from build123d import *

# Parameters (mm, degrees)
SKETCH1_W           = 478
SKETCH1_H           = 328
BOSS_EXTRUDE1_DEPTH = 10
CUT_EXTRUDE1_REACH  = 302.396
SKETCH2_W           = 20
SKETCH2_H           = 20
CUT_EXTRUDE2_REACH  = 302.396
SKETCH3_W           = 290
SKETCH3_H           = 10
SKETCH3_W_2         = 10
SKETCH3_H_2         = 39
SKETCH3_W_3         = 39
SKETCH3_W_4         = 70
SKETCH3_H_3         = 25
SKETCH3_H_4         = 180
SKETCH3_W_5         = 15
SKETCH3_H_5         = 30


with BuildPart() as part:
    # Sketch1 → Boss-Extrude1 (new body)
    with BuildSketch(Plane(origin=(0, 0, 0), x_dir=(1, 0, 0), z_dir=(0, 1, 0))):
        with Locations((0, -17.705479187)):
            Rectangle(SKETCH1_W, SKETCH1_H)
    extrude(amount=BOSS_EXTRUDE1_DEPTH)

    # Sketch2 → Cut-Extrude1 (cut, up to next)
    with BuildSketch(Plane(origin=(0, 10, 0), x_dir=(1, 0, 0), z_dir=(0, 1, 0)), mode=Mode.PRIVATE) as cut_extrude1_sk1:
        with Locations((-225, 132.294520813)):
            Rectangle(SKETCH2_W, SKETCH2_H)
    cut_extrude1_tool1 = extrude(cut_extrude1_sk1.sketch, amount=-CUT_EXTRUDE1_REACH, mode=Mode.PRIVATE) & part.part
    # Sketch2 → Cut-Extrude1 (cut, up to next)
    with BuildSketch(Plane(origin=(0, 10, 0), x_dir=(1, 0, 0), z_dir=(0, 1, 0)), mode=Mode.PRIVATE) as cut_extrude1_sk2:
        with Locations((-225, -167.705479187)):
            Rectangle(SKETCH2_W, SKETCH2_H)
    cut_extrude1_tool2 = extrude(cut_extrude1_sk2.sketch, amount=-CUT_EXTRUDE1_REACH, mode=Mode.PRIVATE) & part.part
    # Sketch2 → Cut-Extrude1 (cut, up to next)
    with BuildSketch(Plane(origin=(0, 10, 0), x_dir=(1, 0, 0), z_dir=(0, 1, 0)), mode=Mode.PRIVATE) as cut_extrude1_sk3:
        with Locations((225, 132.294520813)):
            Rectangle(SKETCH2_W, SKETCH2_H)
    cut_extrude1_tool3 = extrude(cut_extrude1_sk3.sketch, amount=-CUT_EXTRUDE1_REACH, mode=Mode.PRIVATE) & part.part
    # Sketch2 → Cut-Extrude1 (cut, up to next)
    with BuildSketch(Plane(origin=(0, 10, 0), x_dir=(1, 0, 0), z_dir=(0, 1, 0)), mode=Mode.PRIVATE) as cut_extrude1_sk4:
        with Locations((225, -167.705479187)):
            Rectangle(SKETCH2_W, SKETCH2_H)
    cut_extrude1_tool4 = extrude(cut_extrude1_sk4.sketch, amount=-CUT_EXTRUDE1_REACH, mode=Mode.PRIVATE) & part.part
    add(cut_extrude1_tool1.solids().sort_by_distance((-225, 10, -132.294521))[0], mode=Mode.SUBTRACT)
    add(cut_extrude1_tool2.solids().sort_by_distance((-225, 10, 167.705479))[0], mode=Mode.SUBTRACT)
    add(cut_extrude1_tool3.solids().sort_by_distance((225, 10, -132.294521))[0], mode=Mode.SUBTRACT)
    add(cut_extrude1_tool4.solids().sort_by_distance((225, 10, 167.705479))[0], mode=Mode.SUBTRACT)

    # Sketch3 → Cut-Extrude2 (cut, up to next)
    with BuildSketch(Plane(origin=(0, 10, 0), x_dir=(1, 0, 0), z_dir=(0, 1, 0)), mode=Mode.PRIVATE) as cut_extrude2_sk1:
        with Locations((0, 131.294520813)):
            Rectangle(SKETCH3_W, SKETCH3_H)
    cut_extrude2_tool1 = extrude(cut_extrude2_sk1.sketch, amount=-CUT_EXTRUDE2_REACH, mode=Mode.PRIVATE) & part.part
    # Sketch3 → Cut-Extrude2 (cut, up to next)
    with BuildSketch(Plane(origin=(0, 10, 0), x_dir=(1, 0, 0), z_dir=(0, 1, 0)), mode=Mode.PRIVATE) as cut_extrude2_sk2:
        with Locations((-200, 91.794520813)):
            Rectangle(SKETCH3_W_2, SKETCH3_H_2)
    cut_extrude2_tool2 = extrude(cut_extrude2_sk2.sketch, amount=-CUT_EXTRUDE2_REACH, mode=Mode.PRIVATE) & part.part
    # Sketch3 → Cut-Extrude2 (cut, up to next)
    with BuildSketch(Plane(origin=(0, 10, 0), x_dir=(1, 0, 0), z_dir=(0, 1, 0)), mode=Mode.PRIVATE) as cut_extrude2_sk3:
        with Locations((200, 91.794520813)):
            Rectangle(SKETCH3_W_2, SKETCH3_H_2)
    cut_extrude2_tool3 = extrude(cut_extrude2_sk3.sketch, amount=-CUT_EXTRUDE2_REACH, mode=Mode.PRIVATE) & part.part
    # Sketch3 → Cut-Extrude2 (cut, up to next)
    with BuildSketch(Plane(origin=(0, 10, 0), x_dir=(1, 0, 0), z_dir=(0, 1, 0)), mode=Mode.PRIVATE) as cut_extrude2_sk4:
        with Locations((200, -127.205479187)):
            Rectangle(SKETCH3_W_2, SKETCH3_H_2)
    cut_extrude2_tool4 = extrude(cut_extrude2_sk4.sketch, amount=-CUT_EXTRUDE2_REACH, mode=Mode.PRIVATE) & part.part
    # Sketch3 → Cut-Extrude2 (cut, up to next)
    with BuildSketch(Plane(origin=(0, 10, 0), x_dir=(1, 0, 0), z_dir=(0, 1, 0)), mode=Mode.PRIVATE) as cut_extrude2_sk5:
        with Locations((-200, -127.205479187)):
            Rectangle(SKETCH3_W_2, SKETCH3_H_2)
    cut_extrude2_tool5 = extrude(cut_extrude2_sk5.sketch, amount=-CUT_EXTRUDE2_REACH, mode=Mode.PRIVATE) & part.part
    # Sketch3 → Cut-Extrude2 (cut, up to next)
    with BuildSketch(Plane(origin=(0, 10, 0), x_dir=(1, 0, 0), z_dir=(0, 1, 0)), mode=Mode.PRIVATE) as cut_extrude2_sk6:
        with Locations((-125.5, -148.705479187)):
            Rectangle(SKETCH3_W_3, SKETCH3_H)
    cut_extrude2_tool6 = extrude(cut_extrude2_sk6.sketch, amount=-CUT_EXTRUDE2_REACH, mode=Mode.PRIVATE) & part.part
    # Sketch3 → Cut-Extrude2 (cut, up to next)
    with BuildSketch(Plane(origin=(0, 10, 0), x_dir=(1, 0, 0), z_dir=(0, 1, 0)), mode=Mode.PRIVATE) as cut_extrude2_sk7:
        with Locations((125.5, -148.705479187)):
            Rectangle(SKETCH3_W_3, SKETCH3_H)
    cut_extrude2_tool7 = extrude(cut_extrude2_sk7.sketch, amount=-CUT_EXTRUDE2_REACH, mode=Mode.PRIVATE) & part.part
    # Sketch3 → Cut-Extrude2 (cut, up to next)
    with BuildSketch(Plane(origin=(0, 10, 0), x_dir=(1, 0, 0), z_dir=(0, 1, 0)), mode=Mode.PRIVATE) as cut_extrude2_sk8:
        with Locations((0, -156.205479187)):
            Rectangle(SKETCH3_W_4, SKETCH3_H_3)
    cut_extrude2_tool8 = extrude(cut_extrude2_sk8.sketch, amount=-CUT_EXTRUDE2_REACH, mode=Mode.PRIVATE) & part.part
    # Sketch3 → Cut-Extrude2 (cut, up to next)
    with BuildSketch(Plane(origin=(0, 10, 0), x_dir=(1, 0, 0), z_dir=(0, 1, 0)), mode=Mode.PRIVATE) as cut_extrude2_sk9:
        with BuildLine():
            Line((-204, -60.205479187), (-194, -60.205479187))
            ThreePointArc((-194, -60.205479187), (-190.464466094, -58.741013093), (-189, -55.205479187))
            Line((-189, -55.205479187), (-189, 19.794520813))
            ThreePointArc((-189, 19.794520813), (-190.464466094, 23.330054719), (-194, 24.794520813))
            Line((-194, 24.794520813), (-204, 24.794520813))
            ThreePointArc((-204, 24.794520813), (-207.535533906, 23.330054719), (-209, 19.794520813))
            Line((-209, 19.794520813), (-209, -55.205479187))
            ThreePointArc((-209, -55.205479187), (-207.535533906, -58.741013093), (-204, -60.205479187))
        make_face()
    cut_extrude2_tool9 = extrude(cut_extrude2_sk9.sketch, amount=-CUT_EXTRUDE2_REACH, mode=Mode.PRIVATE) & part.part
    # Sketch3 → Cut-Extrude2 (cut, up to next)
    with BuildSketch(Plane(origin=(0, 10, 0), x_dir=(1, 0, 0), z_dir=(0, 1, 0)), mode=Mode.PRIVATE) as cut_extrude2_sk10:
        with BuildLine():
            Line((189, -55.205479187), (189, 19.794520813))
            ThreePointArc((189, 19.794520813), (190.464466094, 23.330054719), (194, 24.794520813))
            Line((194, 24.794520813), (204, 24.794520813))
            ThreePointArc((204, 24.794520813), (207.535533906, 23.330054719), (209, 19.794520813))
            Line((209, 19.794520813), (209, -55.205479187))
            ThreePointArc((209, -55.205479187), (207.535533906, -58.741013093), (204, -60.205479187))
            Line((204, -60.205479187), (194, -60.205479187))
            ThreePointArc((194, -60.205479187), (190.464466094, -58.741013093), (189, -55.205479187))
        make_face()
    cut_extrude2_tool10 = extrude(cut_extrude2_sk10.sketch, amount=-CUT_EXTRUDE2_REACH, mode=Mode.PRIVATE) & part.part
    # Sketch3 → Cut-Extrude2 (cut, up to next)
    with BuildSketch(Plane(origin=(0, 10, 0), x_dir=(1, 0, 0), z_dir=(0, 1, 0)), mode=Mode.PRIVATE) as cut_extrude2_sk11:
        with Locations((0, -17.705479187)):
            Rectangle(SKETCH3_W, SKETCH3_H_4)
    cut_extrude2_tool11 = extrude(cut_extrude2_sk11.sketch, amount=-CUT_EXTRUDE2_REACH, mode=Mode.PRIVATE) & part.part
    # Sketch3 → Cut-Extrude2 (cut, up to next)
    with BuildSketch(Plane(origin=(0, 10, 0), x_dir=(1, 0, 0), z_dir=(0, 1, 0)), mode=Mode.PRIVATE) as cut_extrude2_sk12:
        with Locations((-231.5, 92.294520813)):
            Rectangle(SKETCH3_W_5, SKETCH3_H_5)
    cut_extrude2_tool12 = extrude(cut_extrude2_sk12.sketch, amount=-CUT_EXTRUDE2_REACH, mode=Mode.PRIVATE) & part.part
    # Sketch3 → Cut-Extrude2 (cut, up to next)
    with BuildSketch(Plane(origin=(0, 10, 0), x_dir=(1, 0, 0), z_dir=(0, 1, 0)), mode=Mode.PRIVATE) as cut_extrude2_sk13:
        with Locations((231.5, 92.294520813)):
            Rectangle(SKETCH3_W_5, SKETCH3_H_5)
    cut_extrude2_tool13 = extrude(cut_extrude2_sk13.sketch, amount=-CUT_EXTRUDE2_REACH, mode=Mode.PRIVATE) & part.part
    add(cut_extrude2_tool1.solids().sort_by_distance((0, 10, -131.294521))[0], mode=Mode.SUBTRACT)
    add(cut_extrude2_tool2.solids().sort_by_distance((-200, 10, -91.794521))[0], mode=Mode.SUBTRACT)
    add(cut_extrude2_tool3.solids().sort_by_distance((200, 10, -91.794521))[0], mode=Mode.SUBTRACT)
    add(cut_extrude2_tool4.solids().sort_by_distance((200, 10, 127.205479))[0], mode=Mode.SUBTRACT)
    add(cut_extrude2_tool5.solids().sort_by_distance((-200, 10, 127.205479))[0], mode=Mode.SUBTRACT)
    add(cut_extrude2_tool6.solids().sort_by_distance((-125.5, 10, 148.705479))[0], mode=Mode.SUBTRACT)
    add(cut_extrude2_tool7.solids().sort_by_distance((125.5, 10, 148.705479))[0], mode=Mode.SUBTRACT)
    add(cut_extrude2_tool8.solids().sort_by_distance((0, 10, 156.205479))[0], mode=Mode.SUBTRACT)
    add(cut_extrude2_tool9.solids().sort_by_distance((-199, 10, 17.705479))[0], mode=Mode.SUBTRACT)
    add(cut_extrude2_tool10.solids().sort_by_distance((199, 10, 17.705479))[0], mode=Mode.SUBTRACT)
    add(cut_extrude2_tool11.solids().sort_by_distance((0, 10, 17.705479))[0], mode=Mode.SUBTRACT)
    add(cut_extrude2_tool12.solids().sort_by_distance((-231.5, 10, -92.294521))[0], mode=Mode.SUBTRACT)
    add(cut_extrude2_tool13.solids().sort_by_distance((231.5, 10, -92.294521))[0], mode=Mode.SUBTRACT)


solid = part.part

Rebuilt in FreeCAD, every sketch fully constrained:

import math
import FreeCAD as App
import Part
import Sketcher

V = App.Vector

doc = App.newDocument("Part")
body = doc.addObject("PartDesign::Body", "Body")

# Sketch on XZ plane
sketch1 = body.newObject("Sketcher::SketchObject", "Sketch")
sketch1.AttachmentSupport = (doc.getObject("XZ_Plane"), [""])
sketch1.MapMode = "FlatFace"
sketch1.addGeometry([
    Part.LineSegment(V(-239, -146, 0), V(-239, 182, 0)),
    Part.LineSegment(V(-239, 182, 0), V(239, 182, 0)),
    Part.LineSegment(V(239, 182, 0), V(239, -146, 0)),
    Part.LineSegment(V(239, -146, 0), V(-239, -146, 0)),
], False)
sketch1.addConstraint([
    Sketcher.Constraint("Coincident", 0, 2, 1, 1),
    Sketcher.Constraint("Coincident", 1, 2, 2, 1),
    Sketcher.Constraint("Coincident", 2, 2, 3, 1),
    Sketcher.Constraint("Coincident", 3, 2, 0, 1),
    Sketcher.Constraint("Vertical", 0),
    Sketcher.Constraint("Horizontal", 1),
    Sketcher.Constraint("Vertical", 2),
    Sketcher.Constraint("Horizontal", 3),
    Sketcher.Constraint("DistanceX", 1, 1, 1, 2, 478.0),
    Sketcher.Constraint("DistanceY", 0, 1, 0, 2, 328.0),
    Sketcher.Constraint("DistanceX", 0, 2, -1, 1, 239.0),
    Sketcher.Constraint("DistanceY", -1, 1, 0, 2, 181.705479),
])
pad1 = body.newObject("PartDesign::Pad", "Pad")
pad1.Profile = sketch1
pad1.Length = 10
pad1.Reversed = True

# Sketch on XZ plane
sketch2 = body.newObject("Sketcher::SketchObject", "Sketch001")
sketch2.AttachmentSupport = (doc.getObject("XZ_Plane"), [""])
sketch2.MapMode = "FlatFace"
sketch2.AttachmentOffset = App.Placement(V(0, 0, -10), App.Rotation())
sketch2.addGeometry([
    Part.LineSegment(V(-235, -142, 0), V(-235, -122, 0)),
    Part.LineSegment(V(-235, -122, 0), V(-215, -122, 0)),
    Part.LineSegment(V(-215, -122, 0), V(-215, -142, 0)),
    Part.LineSegment(V(-215, -142, 0), V(-235, -142, 0)),
], False)
sketch2.addConstraint([
    Sketcher.Constraint("Coincident", 0, 2, 1, 1),
    Sketcher.Constraint("Coincident", 1, 2, 2, 1),
    Sketcher.Constraint("Coincident", 2, 2, 3, 1),
    Sketcher.Constraint("Coincident", 3, 2, 0, 1),
    Sketcher.Constraint("Vertical", 0),
    Sketcher.Constraint("Horizontal", 1),
    Sketcher.Constraint("Vertical", 2),
    Sketcher.Constraint("Horizontal", 3),
    Sketcher.Constraint("Equal", 3, 0),
    Sketcher.Constraint("DistanceX", 1, 1, 1, 2, 20.0),
    Sketcher.Constraint("DistanceX", 0, 2, -1, 1, 235.0),
    Sketcher.Constraint("DistanceY", 0, 2, -1, 1, 122.294521),
])
pocket1 = body.newObject("PartDesign::Pocket", "Pocket")
pocket1.Profile = sketch2
pocket1.Type = "UpToFirst"
pocket1.Reversed = True

# Sketch on XZ plane
sketch3 = body.newObject("Sketcher::SketchObject", "Sketch002")
sketch3.AttachmentSupport = (doc.getObject("XZ_Plane"), [""])
sketch3.MapMode = "FlatFace"
sketch3.AttachmentOffset = App.Placement(V(0, 0, -10), App.Rotation())
sketch3.addGeometry([
    Part.LineSegment(V(-235, 158, 0), V(-235, 178, 0)),
    Part.LineSegment(V(-235, 178, 0), V(-215, 178, 0)),
    Part.LineSegment(V(-215, 178, 0), V(-215, 158, 0)),
    Part.LineSegment(V(-215, 158, 0), V(-235, 158, 0)),
], False)
sketch3.addConstraint([
    Sketcher.Constraint("Coincident", 0, 2, 1, 1),
    Sketcher.Constraint("Coincident", 1, 2, 2, 1),
    Sketcher.Constraint("Coincident", 2, 2, 3, 1),
    Sketcher.Constraint("Coincident", 3, 2, 0, 1),
    Sketcher.Constraint("Vertical", 0),
    Sketcher.Constraint("Horizontal", 1),
    Sketcher.Constraint("Vertical", 2),
    Sketcher.Constraint("Horizontal", 3),
    Sketcher.Constraint("Equal", 3, 0),
    Sketcher.Constraint("DistanceX", 1, 1, 1, 2, 20.0),
    Sketcher.Constraint("DistanceX", 0, 2, -1, 1, 235.0),
    Sketcher.Constraint("DistanceY", -1, 1, 0, 2, 177.705479),
])
pocket2 = body.newObject("PartDesign::Pocket", "Pocket001")
pocket2.Profile = sketch3
pocket2.Type = "UpToFirst"
pocket2.Reversed = True

# Sketch on XZ plane
sketch4 = body.newObject("Sketcher::SketchObject", "Sketch003")
sketch4.AttachmentSupport = (doc.getObject("XZ_Plane"), [""])
sketch4.MapMode = "FlatFace"
sketch4.AttachmentOffset = App.Placement(V(0, 0, -10), App.Rotation())
sketch4.addGeometry([
    Part.LineSegment(V(215, -142, 0), V(215, -122, 0)),
    Part.LineSegment(V(215, -122, 0), V(235, -122, 0)),
    Part.LineSegment(V(235, -122, 0), V(235, -142, 0)),
    Part.LineSegment(V(235, -142, 0), V(215, -142, 0)),
], False)
sketch4.addConstraint([
    Sketcher.Constraint("Coincident", 0, 2, 1, 1),
    Sketcher.Constraint("Coincident", 1, 2, 2, 1),
    Sketcher.Constraint("Coincident", 2, 2, 3, 1),
    Sketcher.Constraint("Coincident", 3, 2, 0, 1),
    Sketcher.Constraint("Vertical", 0),
    Sketcher.Constraint("Horizontal", 1),
    Sketcher.Constraint("Vertical", 2),
    Sketcher.Constraint("Horizontal", 3),
    Sketcher.Constraint("Equal", 3, 0),
    Sketcher.Constraint("DistanceX", 1, 1, 1, 2, 20.0),
    Sketcher.Constraint("DistanceX", -1, 1, 0, 2, 215.0),
    Sketcher.Constraint("DistanceY", 0, 2, -1, 1, 122.294521),
])
pocket3 = body.newObject("PartDesign::Pocket", "Pocket002")
pocket3.Profile = sketch4
pocket3.Type = "UpToFirst"
pocket3.Reversed = True

# Sketch on XZ plane
sketch5 = body.newObject("Sketcher::SketchObject", "Sketch004")
sketch5.AttachmentSupport = (doc.getObject("XZ_Plane"), [""])
sketch5.MapMode = "FlatFace"
sketch5.AttachmentOffset = App.Placement(V(0, 0, -10), App.Rotation())
sketch5.addGeometry([
    Part.LineSegment(V(215, 158, 0), V(215, 178, 0)),
    Part.LineSegment(V(215, 178, 0), V(235, 178, 0)),
    Part.LineSegment(V(235, 178, 0), V(235, 158, 0)),
    Part.LineSegment(V(235, 158, 0), V(215, 158, 0)),
], False)
sketch5.addConstraint([
    Sketcher.Constraint("Coincident", 0, 2, 1, 1),
    Sketcher.Constraint("Coincident", 1, 2, 2, 1),
    Sketcher.Constraint("Coincident", 2, 2, 3, 1),
    Sketcher.Constraint("Coincident", 3, 2, 0, 1),
    Sketcher.Constraint("Vertical", 0),
    Sketcher.Constraint("Horizontal", 1),
    Sketcher.Constraint("Vertical", 2),
    Sketcher.Constraint("Horizontal", 3),
    Sketcher.Constraint("Equal", 3, 0),
    Sketcher.Constraint("DistanceX", 1, 1, 1, 2, 20.0),
    Sketcher.Constraint("DistanceX", -1, 1, 0, 2, 215.0),
    Sketcher.Constraint("DistanceY", -1, 1, 0, 2, 177.705479),
])
pocket4 = body.newObject("PartDesign::Pocket", "Pocket003")
pocket4.Profile = sketch5
pocket4.Type = "UpToFirst"
pocket4.Reversed = True

# Sketch on XZ plane
sketch6 = body.newObject("Sketcher::SketchObject", "Sketch005")
sketch6.AttachmentSupport = (doc.getObject("XZ_Plane"), [""])
sketch6.MapMode = "FlatFace"
sketch6.AttachmentOffset = App.Placement(V(0, 0, -10), App.Rotation())
sketch6.addGeometry([
    Part.LineSegment(V(-145, -136, 0), V(-145, -126, 0)),
    Part.LineSegment(V(-145, -126, 0), V(145, -126, 0)),
    Part.LineSegment(V(145, -126, 0), V(145, -136, 0)),
    Part.LineSegment(V(145, -136, 0), V(-145, -136, 0)),
], False)
sketch6.addConstraint([
    Sketcher.Constraint("Coincident", 0, 2, 1, 1),
    Sketcher.Constraint("Coincident", 1, 2, 2, 1),
    Sketcher.Constraint("Coincident", 2, 2, 3, 1),
    Sketcher.Constraint("Coincident", 3, 2, 0, 1),
    Sketcher.Constraint("Vertical", 0),
    Sketcher.Constraint("Horizontal", 1),
    Sketcher.Constraint("Vertical", 2),
    Sketcher.Constraint("Horizontal", 3),
    Sketcher.Constraint("DistanceX", 1, 1, 1, 2, 290.0),
    Sketcher.Constraint("DistanceY", 0, 1, 0, 2, 10.0),
    Sketcher.Constraint("DistanceX", 0, 2, -1, 1, 145.0),
    Sketcher.Constraint("DistanceY", 0, 2, -1, 1, 126.294521),
])
pocket5 = body.newObject("PartDesign::Pocket", "Pocket004")
pocket5.Profile = sketch6
pocket5.Type = "UpToFirst"
pocket5.Reversed = True

# Sketch on XZ plane
sketch7 = body.newObject("Sketcher::SketchObject", "Sketch006")
sketch7.AttachmentSupport = (doc.getObject("XZ_Plane"), [""])
sketch7.MapMode = "FlatFace"
sketch7.AttachmentOffset = App.Placement(V(0, 0, -10), App.Rotation())
sketch7.addGeometry([
    Part.LineSegment(V(-205, -111, 0), V(-205, -72, 0)),
    Part.LineSegment(V(-205, -72, 0), V(-195, -72, 0)),
    Part.LineSegment(V(-195, -72, 0), V(-195, -111, 0)),
    Part.LineSegment(V(-195, -111, 0), V(-205, -111, 0)),
], False)
sketch7.addConstraint([
    Sketcher.Constraint("Coincident", 0, 2, 1, 1),
    Sketcher.Constraint("Coincident", 1, 2, 2, 1),
    Sketcher.Constraint("Coincident", 2, 2, 3, 1),
    Sketcher.Constraint("Coincident", 3, 2, 0, 1),
    Sketcher.Constraint("Vertical", 0),
    Sketcher.Constraint("Horizontal", 1),
    Sketcher.Constraint("Vertical", 2),
    Sketcher.Constraint("Horizontal", 3),
    Sketcher.Constraint("DistanceX", 1, 1, 1, 2, 10.0),
    Sketcher.Constraint("DistanceY", 0, 1, 0, 2, 39.0),
    Sketcher.Constraint("DistanceX", 0, 2, -1, 1, 205.0),
    Sketcher.Constraint("DistanceY", 0, 2, -1, 1, 72.294521),
])
pocket6 = body.newObject("PartDesign::Pocket", "Pocket005")
pocket6.Profile = sketch7
pocket6.Type = "UpToFirst"
pocket6.Reversed = True

# Sketch on XZ plane
sketch8 = body.newObject("Sketcher::SketchObject", "Sketch007")
sketch8.AttachmentSupport = (doc.getObject("XZ_Plane"), [""])
sketch8.MapMode = "FlatFace"
sketch8.AttachmentOffset = App.Placement(V(0, 0, -10), App.Rotation())
sketch8.addGeometry([
    Part.LineSegment(V(195, -111, 0), V(195, -72, 0)),
    Part.LineSegment(V(195, -72, 0), V(205, -72, 0)),
    Part.LineSegment(V(205, -72, 0), V(205, -111, 0)),
    Part.LineSegment(V(205, -111, 0), V(195, -111, 0)),
], False)
sketch8.addConstraint([
    Sketcher.Constraint("Coincident", 0, 2, 1, 1),
    Sketcher.Constraint("Coincident", 1, 2, 2, 1),
    Sketcher.Constraint("Coincident", 2, 2, 3, 1),
    Sketcher.Constraint("Coincident", 3, 2, 0, 1),
    Sketcher.Constraint("Vertical", 0),
    Sketcher.Constraint("Horizontal", 1),
    Sketcher.Constraint("Vertical", 2),
    Sketcher.Constraint("Horizontal", 3),
    Sketcher.Constraint("DistanceX", 1, 1, 1, 2, 10.0),
    Sketcher.Constraint("DistanceY", 0, 1, 0, 2, 39.0),
    Sketcher.Constraint("DistanceX", -1, 1, 0, 2, 195.0),
    Sketcher.Constraint("DistanceY", 0, 2, -1, 1, 72.294521),
])
pocket7 = body.newObject("PartDesign::Pocket", "Pocket006")
pocket7.Profile = sketch8
pocket7.Type = "UpToFirst"
pocket7.Reversed = True

# Sketch on XZ plane
sketch9 = body.newObject("Sketcher::SketchObject", "Sketch008")
sketch9.AttachmentSupport = (doc.getObject("XZ_Plane"), [""])
sketch9.MapMode = "FlatFace"
sketch9.AttachmentOffset = App.Placement(V(0, 0, -10), App.Rotation())
sketch9.addGeometry([
    Part.LineSegment(V(195, 108, 0), V(195, 147, 0)),
    Part.LineSegment(V(195, 147, 0), V(205, 147, 0)),
    Part.LineSegment(V(205, 147, 0), V(205, 108, 0)),
    Part.LineSegment(V(205, 108, 0), V(195, 108, 0)),
], False)
sketch9.addConstraint([
    Sketcher.Constraint("Coincident", 0, 2, 1, 1),
    Sketcher.Constraint("Coincident", 1, 2, 2, 1),
    Sketcher.Constraint("Coincident", 2, 2, 3, 1),
    Sketcher.Constraint("Coincident", 3, 2, 0, 1),
    Sketcher.Constraint("Vertical", 0),
    Sketcher.Constraint("Horizontal", 1),
    Sketcher.Constraint("Vertical", 2),
    Sketcher.Constraint("Horizontal", 3),
    Sketcher.Constraint("DistanceX", 1, 1, 1, 2, 10.0),
    Sketcher.Constraint("DistanceY", 0, 1, 0, 2, 39.0),
    Sketcher.Constraint("DistanceX", -1, 1, 0, 2, 195.0),
    Sketcher.Constraint("DistanceY", -1, 1, 0, 2, 146.705479),
])
pocket8 = body.newObject("PartDesign::Pocket", "Pocket007")
pocket8.Profile = sketch9
pocket8.Type = "UpToFirst"
pocket8.Reversed = True

# Sketch on XZ plane
sketch10 = body.newObject("Sketcher::SketchObject", "Sketch009")
sketch10.AttachmentSupport = (doc.getObject("XZ_Plane"), [""])
sketch10.MapMode = "FlatFace"
sketch10.AttachmentOffset = App.Placement(V(0, 0, -10), App.Rotation())
sketch10.addGeometry([
    Part.LineSegment(V(-205, 108, 0), V(-205, 147, 0)),
    Part.LineSegment(V(-205, 147, 0), V(-195, 147, 0)),
    Part.LineSegment(V(-195, 147, 0), V(-195, 108, 0)),
    Part.LineSegment(V(-195, 108, 0), V(-205, 108, 0)),
], False)
sketch10.addConstraint([
    Sketcher.Constraint("Coincident", 0, 2, 1, 1),
    Sketcher.Constraint("Coincident", 1, 2, 2, 1),
    Sketcher.Constraint("Coincident", 2, 2, 3, 1),
    Sketcher.Constraint("Coincident", 3, 2, 0, 1),
    Sketcher.Constraint("Vertical", 0),
    Sketcher.Constraint("Horizontal", 1),
    Sketcher.Constraint("Vertical", 2),
    Sketcher.Constraint("Horizontal", 3),
    Sketcher.Constraint("DistanceX", 1, 1, 1, 2, 10.0),
    Sketcher.Constraint("DistanceY", 0, 1, 0, 2, 39.0),
    Sketcher.Constraint("DistanceX", 0, 2, -1, 1, 205.0),
    Sketcher.Constraint("DistanceY", -1, 1, 0, 2, 146.705479),
])
pocket9 = body.newObject("PartDesign::Pocket", "Pocket008")
pocket9.Profile = sketch10
pocket9.Type = "UpToFirst"
pocket9.Reversed = True

# Sketch on XZ plane
sketch11 = body.newObject("Sketcher::SketchObject", "Sketch010")
sketch11.AttachmentSupport = (doc.getObject("XZ_Plane"), [""])
sketch11.MapMode = "FlatFace"
sketch11.AttachmentOffset = App.Placement(V(0, 0, -10), App.Rotation())
sketch11.addGeometry([
    Part.LineSegment(V(-145, 144, 0), V(-145, 154, 0)),
    Part.LineSegment(V(-145, 154, 0), V(-106, 154, 0)),
    Part.LineSegment(V(-106, 154, 0), V(-106, 144, 0)),
    Part.LineSegment(V(-106, 144, 0), V(-145, 144, 0)),
], False)
sketch11.addConstraint([
    Sketcher.Constraint("Coincident", 0, 2, 1, 1),
    Sketcher.Constraint("Coincident", 1, 2, 2, 1),
    Sketcher.Constraint("Coincident", 2, 2, 3, 1),
    Sketcher.Constraint("Coincident", 3, 2, 0, 1),
    Sketcher.Constraint("Vertical", 0),
    Sketcher.Constraint("Horizontal", 1),
    Sketcher.Constraint("Vertical", 2),
    Sketcher.Constraint("Horizontal", 3),
    Sketcher.Constraint("DistanceX", 1, 1, 1, 2, 39.0),
    Sketcher.Constraint("DistanceY", 0, 1, 0, 2, 10.0),
    Sketcher.Constraint("DistanceX", 0, 2, -1, 1, 145.0),
    Sketcher.Constraint("DistanceY", -1, 1, 0, 2, 153.705479),
])
pocket10 = body.newObject("PartDesign::Pocket", "Pocket009")
pocket10.Profile = sketch11
pocket10.Type = "UpToFirst"
pocket10.Reversed = True

# Sketch on XZ plane
sketch12 = body.newObject("Sketcher::SketchObject", "Sketch011")
sketch12.AttachmentSupport = (doc.getObject("XZ_Plane"), [""])
sketch12.MapMode = "FlatFace"
sketch12.AttachmentOffset = App.Placement(V(0, 0, -10), App.Rotation())
sketch12.addGeometry([
    Part.LineSegment(V(106, 144, 0), V(106, 154, 0)),
    Part.LineSegment(V(106, 154, 0), V(145, 154, 0)),
    Part.LineSegment(V(145, 154, 0), V(145, 144, 0)),
    Part.LineSegment(V(145, 144, 0), V(106, 144, 0)),
], False)
sketch12.addConstraint([
    Sketcher.Constraint("Coincident", 0, 2, 1, 1),
    Sketcher.Constraint("Coincident", 1, 2, 2, 1),
    Sketcher.Constraint("Coincident", 2, 2, 3, 1),
    Sketcher.Constraint("Coincident", 3, 2, 0, 1),
    Sketcher.Constraint("Vertical", 0),
    Sketcher.Constraint("Horizontal", 1),
    Sketcher.Constraint("Vertical", 2),
    Sketcher.Constraint("Horizontal", 3),
    Sketcher.Constraint("DistanceX", 1, 1, 1, 2, 39.0),
    Sketcher.Constraint("DistanceY", 0, 1, 0, 2, 10.0),
    Sketcher.Constraint("DistanceX", -1, 1, 0, 2, 106.0),
    Sketcher.Constraint("DistanceY", -1, 1, 0, 2, 153.705479),
])
pocket11 = body.newObject("PartDesign::Pocket", "Pocket010")
pocket11.Profile = sketch12
pocket11.Type = "UpToFirst"
pocket11.Reversed = True

# Sketch on XZ plane
sketch13 = body.newObject("Sketcher::SketchObject", "Sketch012")
sketch13.AttachmentSupport = (doc.getObject("XZ_Plane"), [""])
sketch13.MapMode = "FlatFace"
sketch13.AttachmentOffset = App.Placement(V(0, 0, -10), App.Rotation())
sketch13.addGeometry([
    Part.LineSegment(V(-35, 144, 0), V(-35, 169, 0)),
    Part.LineSegment(V(-35, 169, 0), V(35, 169, 0)),
    Part.LineSegment(V(35, 169, 0), V(35, 144, 0)),
    Part.LineSegment(V(35, 144, 0), V(-35, 144, 0)),
], False)
sketch13.addConstraint([
    Sketcher.Constraint("Coincident", 0, 2, 1, 1),
    Sketcher.Constraint("Coincident", 1, 2, 2, 1),
    Sketcher.Constraint("Coincident", 2, 2, 3, 1),
    Sketcher.Constraint("Coincident", 3, 2, 0, 1),
    Sketcher.Constraint("Vertical", 0),
    Sketcher.Constraint("Horizontal", 1),
    Sketcher.Constraint("Vertical", 2),
    Sketcher.Constraint("Horizontal", 3),
    Sketcher.Constraint("DistanceX", 1, 1, 1, 2, 70.0),
    Sketcher.Constraint("DistanceY", 0, 1, 0, 2, 25.0),
    Sketcher.Constraint("DistanceX", 0, 2, -1, 1, 35.0),
    Sketcher.Constraint("DistanceY", -1, 1, 0, 2, 168.705479),
])
pocket12 = body.newObject("PartDesign::Pocket", "Pocket011")
pocket12.Profile = sketch13
pocket12.Type = "UpToFirst"
pocket12.Reversed = True

# Sketch on XZ plane
sketch14 = body.newObject("Sketcher::SketchObject", "Sketch013")
sketch14.AttachmentSupport = (doc.getObject("XZ_Plane"), [""])
sketch14.MapMode = "FlatFace"
sketch14.AttachmentOffset = App.Placement(V(0, 0, -10), App.Rotation())
sketch14.addGeometry([
    Part.LineSegment(V(-204, 60, 0), V(-194, 60, 0)),  # 0
    Part.ArcOfCircle(Part.Circle(V(-194, 55, 0), V(0, 0, 1), 5), math.radians(0), math.radians(90)),  # 1
    Part.LineSegment(V(-189, 55, 0), V(-189, -20, 0)),  # 2
    Part.ArcOfCircle(Part.Circle(V(-194, -20, 0), V(0, 0, 1), 5), math.radians(-90), math.radians(0)),  # 3
    Part.LineSegment(V(-194, -25, 0), V(-204, -25, 0)),  # 4
    Part.ArcOfCircle(Part.Circle(V(-204, -20, 0), V(0, 0, 1), 5), math.radians(180), math.radians(270)),  # 5
    Part.LineSegment(V(-209, -20, 0), V(-209, 55, 0)),  # 6
    Part.ArcOfCircle(Part.Circle(V(-204, 55, 0), V(0, 0, 1), 5), math.radians(90), math.radians(180)),  # 7
], False)
sketch14.addConstraint([
    Sketcher.Constraint("Tangent", 0, 2, 1, 2),
    Sketcher.Constraint("Tangent", 1, 1, 2, 1),
    Sketcher.Constraint("Tangent", 2, 2, 3, 2),
    Sketcher.Constraint("Tangent", 3, 1, 4, 1),
    Sketcher.Constraint("Tangent", 4, 2, 5, 2),
    Sketcher.Constraint("Tangent", 5, 1, 6, 1),
    Sketcher.Constraint("Tangent", 6, 2, 7, 2),
    Sketcher.Constraint("Tangent", 7, 1, 0, 1),
    Sketcher.Constraint("Horizontal", 0),
    Sketcher.Constraint("Vertical", 2),
    Sketcher.Constraint("Horizontal", 4),
    Sketcher.Constraint("Vertical", 6),
    Sketcher.Constraint("Equal", 1, 3),
    Sketcher.Constraint("Equal", 3, 5),
    Sketcher.Constraint("Equal", 5, 7),
    Sketcher.Constraint("Radius", 1, 5.0),
    Sketcher.Constraint("DistanceX", 0, 1, 0, 2, 10.0),
    Sketcher.Constraint("DistanceY", 2, 2, 2, 1, 75.0),
    Sketcher.Constraint("DistanceX", 1, 3, -1, 1, 194.0),
    Sketcher.Constraint("DistanceY", -1, 1, 1, 3, 55.205479),
])
pocket13 = body.newObject("PartDesign::Pocket", "Pocket012")
pocket13.Profile = sketch14
pocket13.Type = "UpToFirst"
pocket13.Reversed = True

# Sketch on XZ plane
sketch15 = body.newObject("Sketcher::SketchObject", "Sketch014")
sketch15.AttachmentSupport = (doc.getObject("XZ_Plane"), [""])
sketch15.MapMode = "FlatFace"
sketch15.AttachmentOffset = App.Placement(V(0, 0, -10), App.Rotation())
sketch15.addGeometry([
    Part.LineSegment(V(189, -20, 0), V(189, 55, 0)),  # 0
    Part.ArcOfCircle(Part.Circle(V(194, 55, 0), V(0, 0, 1), 5), math.radians(90), math.radians(180)),  # 1
    Part.LineSegment(V(194, 60, 0), V(204, 60, 0)),  # 2
    Part.ArcOfCircle(Part.Circle(V(204, 55, 0), V(0, 0, 1), 5), math.radians(0), math.radians(90)),  # 3
    Part.LineSegment(V(209, 55, 0), V(209, -20, 0)),  # 4
    Part.ArcOfCircle(Part.Circle(V(204, -20, 0), V(0, 0, 1), 5), math.radians(-90), math.radians(0)),  # 5
    Part.LineSegment(V(204, -25, 0), V(194, -25, 0)),  # 6
    Part.ArcOfCircle(Part.Circle(V(194, -20, 0), V(0, 0, 1), 5), math.radians(180), math.radians(270)),  # 7
], False)
sketch15.addConstraint([
    Sketcher.Constraint("Tangent", 0, 2, 1, 2),
    Sketcher.Constraint("Tangent", 1, 1, 2, 1),
    Sketcher.Constraint("Tangent", 2, 2, 3, 2),
    Sketcher.Constraint("Tangent", 3, 1, 4, 1),
    Sketcher.Constraint("Tangent", 4, 2, 5, 2),
    Sketcher.Constraint("Tangent", 5, 1, 6, 1),
    Sketcher.Constraint("Tangent", 6, 2, 7, 2),
    Sketcher.Constraint("Tangent", 7, 1, 0, 1),
    Sketcher.Constraint("Vertical", 0),
    Sketcher.Constraint("Horizontal", 2),
    Sketcher.Constraint("Vertical", 4),
    Sketcher.Constraint("Horizontal", 6),
    Sketcher.Constraint("Equal", 1, 3),
    Sketcher.Constraint("Equal", 3, 5),
    Sketcher.Constraint("Equal", 5, 7),
    Sketcher.Constraint("Radius", 1, 5.0),
    Sketcher.Constraint("DistanceX", 2, 1, 2, 2, 10.0),
    Sketcher.Constraint("DistanceY", 0, 1, 0, 2, 75.0),
    Sketcher.Constraint("DistanceX", -1, 1, 1, 3, 194.0),
    Sketcher.Constraint("DistanceY", -1, 1, 1, 3, 55.205479),
])
pocket14 = body.newObject("PartDesign::Pocket", "Pocket013")
pocket14.Profile = sketch15
pocket14.Type = "UpToFirst"
pocket14.Reversed = True

# Sketch on XZ plane
sketch16 = body.newObject("Sketcher::SketchObject", "Sketch015")
sketch16.AttachmentSupport = (doc.getObject("XZ_Plane"), [""])
sketch16.MapMode = "FlatFace"
sketch16.AttachmentOffset = App.Placement(V(0, 0, -10), App.Rotation())
sketch16.addGeometry([
    Part.LineSegment(V(-145, -72, 0), V(-145, 108, 0)),
    Part.LineSegment(V(-145, 108, 0), V(145, 108, 0)),
    Part.LineSegment(V(145, 108, 0), V(145, -72, 0)),
    Part.LineSegment(V(145, -72, 0), V(-145, -72, 0)),
], False)
sketch16.addConstraint([
    Sketcher.Constraint("Coincident", 0, 2, 1, 1),
    Sketcher.Constraint("Coincident", 1, 2, 2, 1),
    Sketcher.Constraint("Coincident", 2, 2, 3, 1),
    Sketcher.Constraint("Coincident", 3, 2, 0, 1),
    Sketcher.Constraint("Vertical", 0),
    Sketcher.Constraint("Horizontal", 1),
    Sketcher.Constraint("Vertical", 2),
    Sketcher.Constraint("Horizontal", 3),
    Sketcher.Constraint("DistanceX", 1, 1, 1, 2, 290.0),
    Sketcher.Constraint("DistanceY", 0, 1, 0, 2, 180.0),
    Sketcher.Constraint("DistanceX", 0, 2, -1, 1, 145.0),
    Sketcher.Constraint("DistanceY", -1, 1, 0, 2, 107.705479),
])
pocket15 = body.newObject("PartDesign::Pocket", "Pocket014")
pocket15.Profile = sketch16
pocket15.Type = "UpToFirst"
pocket15.Reversed = True

# Sketch on XZ plane
sketch17 = body.newObject("Sketcher::SketchObject", "Sketch016")
sketch17.AttachmentSupport = (doc.getObject("XZ_Plane"), [""])
sketch17.MapMode = "FlatFace"
sketch17.AttachmentOffset = App.Placement(V(0, 0, -10), App.Rotation())
sketch17.addGeometry([
    Part.LineSegment(V(-239, -107, 0), V(-239, -77, 0)),
    Part.LineSegment(V(-239, -77, 0), V(-224, -77, 0)),
    Part.LineSegment(V(-224, -77, 0), V(-224, -107, 0)),
    Part.LineSegment(V(-224, -107, 0), V(-239, -107, 0)),
], False)
sketch17.addConstraint([
    Sketcher.Constraint("Coincident", 0, 2, 1, 1),
    Sketcher.Constraint("Coincident", 1, 2, 2, 1),
    Sketcher.Constraint("Coincident", 2, 2, 3, 1),
    Sketcher.Constraint("Coincident", 3, 2, 0, 1),
    Sketcher.Constraint("Vertical", 0),
    Sketcher.Constraint("Horizontal", 1),
    Sketcher.Constraint("Vertical", 2),
    Sketcher.Constraint("Horizontal", 3),
    Sketcher.Constraint("DistanceX", 1, 1, 1, 2, 15.0),
    Sketcher.Constraint("DistanceY", 0, 1, 0, 2, 30.0),
    Sketcher.Constraint("DistanceX", 0, 2, -1, 1, 239.0),
    Sketcher.Constraint("DistanceY", 0, 2, -1, 1, 77.294521),
])
pocket16 = body.newObject("PartDesign::Pocket", "Pocket015")
pocket16.Profile = sketch17
pocket16.Type = "UpToFirst"
pocket16.Reversed = True

# Sketch on XZ plane
sketch18 = body.newObject("Sketcher::SketchObject", "Sketch017")
sketch18.AttachmentSupport = (doc.getObject("XZ_Plane"), [""])
sketch18.MapMode = "FlatFace"
sketch18.AttachmentOffset = App.Placement(V(0, 0, -10), App.Rotation())
sketch18.addGeometry([
    Part.LineSegment(V(224, -107, 0), V(224, -77, 0)),
    Part.LineSegment(V(224, -77, 0), V(239, -77, 0)),
    Part.LineSegment(V(239, -77, 0), V(239, -107, 0)),
    Part.LineSegment(V(239, -107, 0), V(224, -107, 0)),
], False)
sketch18.addConstraint([
    Sketcher.Constraint("Coincident", 0, 2, 1, 1),
    Sketcher.Constraint("Coincident", 1, 2, 2, 1),
    Sketcher.Constraint("Coincident", 2, 2, 3, 1),
    Sketcher.Constraint("Coincident", 3, 2, 0, 1),
    Sketcher.Constraint("Vertical", 0),
    Sketcher.Constraint("Horizontal", 1),
    Sketcher.Constraint("Vertical", 2),
    Sketcher.Constraint("Horizontal", 3),
    Sketcher.Constraint("DistanceX", 1, 1, 1, 2, 15.0),
    Sketcher.Constraint("DistanceY", 0, 1, 0, 2, 30.0),
    Sketcher.Constraint("DistanceX", -1, 1, 0, 2, 224.0),
    Sketcher.Constraint("DistanceY", 0, 2, -1, 1, 77.294521),
])
pocket17 = body.newObject("PartDesign::Pocket", "Pocket016")
pocket17.Profile = sketch18
pocket17.Type = "UpToFirst"
pocket17.Reversed = True

doc.recompute()
